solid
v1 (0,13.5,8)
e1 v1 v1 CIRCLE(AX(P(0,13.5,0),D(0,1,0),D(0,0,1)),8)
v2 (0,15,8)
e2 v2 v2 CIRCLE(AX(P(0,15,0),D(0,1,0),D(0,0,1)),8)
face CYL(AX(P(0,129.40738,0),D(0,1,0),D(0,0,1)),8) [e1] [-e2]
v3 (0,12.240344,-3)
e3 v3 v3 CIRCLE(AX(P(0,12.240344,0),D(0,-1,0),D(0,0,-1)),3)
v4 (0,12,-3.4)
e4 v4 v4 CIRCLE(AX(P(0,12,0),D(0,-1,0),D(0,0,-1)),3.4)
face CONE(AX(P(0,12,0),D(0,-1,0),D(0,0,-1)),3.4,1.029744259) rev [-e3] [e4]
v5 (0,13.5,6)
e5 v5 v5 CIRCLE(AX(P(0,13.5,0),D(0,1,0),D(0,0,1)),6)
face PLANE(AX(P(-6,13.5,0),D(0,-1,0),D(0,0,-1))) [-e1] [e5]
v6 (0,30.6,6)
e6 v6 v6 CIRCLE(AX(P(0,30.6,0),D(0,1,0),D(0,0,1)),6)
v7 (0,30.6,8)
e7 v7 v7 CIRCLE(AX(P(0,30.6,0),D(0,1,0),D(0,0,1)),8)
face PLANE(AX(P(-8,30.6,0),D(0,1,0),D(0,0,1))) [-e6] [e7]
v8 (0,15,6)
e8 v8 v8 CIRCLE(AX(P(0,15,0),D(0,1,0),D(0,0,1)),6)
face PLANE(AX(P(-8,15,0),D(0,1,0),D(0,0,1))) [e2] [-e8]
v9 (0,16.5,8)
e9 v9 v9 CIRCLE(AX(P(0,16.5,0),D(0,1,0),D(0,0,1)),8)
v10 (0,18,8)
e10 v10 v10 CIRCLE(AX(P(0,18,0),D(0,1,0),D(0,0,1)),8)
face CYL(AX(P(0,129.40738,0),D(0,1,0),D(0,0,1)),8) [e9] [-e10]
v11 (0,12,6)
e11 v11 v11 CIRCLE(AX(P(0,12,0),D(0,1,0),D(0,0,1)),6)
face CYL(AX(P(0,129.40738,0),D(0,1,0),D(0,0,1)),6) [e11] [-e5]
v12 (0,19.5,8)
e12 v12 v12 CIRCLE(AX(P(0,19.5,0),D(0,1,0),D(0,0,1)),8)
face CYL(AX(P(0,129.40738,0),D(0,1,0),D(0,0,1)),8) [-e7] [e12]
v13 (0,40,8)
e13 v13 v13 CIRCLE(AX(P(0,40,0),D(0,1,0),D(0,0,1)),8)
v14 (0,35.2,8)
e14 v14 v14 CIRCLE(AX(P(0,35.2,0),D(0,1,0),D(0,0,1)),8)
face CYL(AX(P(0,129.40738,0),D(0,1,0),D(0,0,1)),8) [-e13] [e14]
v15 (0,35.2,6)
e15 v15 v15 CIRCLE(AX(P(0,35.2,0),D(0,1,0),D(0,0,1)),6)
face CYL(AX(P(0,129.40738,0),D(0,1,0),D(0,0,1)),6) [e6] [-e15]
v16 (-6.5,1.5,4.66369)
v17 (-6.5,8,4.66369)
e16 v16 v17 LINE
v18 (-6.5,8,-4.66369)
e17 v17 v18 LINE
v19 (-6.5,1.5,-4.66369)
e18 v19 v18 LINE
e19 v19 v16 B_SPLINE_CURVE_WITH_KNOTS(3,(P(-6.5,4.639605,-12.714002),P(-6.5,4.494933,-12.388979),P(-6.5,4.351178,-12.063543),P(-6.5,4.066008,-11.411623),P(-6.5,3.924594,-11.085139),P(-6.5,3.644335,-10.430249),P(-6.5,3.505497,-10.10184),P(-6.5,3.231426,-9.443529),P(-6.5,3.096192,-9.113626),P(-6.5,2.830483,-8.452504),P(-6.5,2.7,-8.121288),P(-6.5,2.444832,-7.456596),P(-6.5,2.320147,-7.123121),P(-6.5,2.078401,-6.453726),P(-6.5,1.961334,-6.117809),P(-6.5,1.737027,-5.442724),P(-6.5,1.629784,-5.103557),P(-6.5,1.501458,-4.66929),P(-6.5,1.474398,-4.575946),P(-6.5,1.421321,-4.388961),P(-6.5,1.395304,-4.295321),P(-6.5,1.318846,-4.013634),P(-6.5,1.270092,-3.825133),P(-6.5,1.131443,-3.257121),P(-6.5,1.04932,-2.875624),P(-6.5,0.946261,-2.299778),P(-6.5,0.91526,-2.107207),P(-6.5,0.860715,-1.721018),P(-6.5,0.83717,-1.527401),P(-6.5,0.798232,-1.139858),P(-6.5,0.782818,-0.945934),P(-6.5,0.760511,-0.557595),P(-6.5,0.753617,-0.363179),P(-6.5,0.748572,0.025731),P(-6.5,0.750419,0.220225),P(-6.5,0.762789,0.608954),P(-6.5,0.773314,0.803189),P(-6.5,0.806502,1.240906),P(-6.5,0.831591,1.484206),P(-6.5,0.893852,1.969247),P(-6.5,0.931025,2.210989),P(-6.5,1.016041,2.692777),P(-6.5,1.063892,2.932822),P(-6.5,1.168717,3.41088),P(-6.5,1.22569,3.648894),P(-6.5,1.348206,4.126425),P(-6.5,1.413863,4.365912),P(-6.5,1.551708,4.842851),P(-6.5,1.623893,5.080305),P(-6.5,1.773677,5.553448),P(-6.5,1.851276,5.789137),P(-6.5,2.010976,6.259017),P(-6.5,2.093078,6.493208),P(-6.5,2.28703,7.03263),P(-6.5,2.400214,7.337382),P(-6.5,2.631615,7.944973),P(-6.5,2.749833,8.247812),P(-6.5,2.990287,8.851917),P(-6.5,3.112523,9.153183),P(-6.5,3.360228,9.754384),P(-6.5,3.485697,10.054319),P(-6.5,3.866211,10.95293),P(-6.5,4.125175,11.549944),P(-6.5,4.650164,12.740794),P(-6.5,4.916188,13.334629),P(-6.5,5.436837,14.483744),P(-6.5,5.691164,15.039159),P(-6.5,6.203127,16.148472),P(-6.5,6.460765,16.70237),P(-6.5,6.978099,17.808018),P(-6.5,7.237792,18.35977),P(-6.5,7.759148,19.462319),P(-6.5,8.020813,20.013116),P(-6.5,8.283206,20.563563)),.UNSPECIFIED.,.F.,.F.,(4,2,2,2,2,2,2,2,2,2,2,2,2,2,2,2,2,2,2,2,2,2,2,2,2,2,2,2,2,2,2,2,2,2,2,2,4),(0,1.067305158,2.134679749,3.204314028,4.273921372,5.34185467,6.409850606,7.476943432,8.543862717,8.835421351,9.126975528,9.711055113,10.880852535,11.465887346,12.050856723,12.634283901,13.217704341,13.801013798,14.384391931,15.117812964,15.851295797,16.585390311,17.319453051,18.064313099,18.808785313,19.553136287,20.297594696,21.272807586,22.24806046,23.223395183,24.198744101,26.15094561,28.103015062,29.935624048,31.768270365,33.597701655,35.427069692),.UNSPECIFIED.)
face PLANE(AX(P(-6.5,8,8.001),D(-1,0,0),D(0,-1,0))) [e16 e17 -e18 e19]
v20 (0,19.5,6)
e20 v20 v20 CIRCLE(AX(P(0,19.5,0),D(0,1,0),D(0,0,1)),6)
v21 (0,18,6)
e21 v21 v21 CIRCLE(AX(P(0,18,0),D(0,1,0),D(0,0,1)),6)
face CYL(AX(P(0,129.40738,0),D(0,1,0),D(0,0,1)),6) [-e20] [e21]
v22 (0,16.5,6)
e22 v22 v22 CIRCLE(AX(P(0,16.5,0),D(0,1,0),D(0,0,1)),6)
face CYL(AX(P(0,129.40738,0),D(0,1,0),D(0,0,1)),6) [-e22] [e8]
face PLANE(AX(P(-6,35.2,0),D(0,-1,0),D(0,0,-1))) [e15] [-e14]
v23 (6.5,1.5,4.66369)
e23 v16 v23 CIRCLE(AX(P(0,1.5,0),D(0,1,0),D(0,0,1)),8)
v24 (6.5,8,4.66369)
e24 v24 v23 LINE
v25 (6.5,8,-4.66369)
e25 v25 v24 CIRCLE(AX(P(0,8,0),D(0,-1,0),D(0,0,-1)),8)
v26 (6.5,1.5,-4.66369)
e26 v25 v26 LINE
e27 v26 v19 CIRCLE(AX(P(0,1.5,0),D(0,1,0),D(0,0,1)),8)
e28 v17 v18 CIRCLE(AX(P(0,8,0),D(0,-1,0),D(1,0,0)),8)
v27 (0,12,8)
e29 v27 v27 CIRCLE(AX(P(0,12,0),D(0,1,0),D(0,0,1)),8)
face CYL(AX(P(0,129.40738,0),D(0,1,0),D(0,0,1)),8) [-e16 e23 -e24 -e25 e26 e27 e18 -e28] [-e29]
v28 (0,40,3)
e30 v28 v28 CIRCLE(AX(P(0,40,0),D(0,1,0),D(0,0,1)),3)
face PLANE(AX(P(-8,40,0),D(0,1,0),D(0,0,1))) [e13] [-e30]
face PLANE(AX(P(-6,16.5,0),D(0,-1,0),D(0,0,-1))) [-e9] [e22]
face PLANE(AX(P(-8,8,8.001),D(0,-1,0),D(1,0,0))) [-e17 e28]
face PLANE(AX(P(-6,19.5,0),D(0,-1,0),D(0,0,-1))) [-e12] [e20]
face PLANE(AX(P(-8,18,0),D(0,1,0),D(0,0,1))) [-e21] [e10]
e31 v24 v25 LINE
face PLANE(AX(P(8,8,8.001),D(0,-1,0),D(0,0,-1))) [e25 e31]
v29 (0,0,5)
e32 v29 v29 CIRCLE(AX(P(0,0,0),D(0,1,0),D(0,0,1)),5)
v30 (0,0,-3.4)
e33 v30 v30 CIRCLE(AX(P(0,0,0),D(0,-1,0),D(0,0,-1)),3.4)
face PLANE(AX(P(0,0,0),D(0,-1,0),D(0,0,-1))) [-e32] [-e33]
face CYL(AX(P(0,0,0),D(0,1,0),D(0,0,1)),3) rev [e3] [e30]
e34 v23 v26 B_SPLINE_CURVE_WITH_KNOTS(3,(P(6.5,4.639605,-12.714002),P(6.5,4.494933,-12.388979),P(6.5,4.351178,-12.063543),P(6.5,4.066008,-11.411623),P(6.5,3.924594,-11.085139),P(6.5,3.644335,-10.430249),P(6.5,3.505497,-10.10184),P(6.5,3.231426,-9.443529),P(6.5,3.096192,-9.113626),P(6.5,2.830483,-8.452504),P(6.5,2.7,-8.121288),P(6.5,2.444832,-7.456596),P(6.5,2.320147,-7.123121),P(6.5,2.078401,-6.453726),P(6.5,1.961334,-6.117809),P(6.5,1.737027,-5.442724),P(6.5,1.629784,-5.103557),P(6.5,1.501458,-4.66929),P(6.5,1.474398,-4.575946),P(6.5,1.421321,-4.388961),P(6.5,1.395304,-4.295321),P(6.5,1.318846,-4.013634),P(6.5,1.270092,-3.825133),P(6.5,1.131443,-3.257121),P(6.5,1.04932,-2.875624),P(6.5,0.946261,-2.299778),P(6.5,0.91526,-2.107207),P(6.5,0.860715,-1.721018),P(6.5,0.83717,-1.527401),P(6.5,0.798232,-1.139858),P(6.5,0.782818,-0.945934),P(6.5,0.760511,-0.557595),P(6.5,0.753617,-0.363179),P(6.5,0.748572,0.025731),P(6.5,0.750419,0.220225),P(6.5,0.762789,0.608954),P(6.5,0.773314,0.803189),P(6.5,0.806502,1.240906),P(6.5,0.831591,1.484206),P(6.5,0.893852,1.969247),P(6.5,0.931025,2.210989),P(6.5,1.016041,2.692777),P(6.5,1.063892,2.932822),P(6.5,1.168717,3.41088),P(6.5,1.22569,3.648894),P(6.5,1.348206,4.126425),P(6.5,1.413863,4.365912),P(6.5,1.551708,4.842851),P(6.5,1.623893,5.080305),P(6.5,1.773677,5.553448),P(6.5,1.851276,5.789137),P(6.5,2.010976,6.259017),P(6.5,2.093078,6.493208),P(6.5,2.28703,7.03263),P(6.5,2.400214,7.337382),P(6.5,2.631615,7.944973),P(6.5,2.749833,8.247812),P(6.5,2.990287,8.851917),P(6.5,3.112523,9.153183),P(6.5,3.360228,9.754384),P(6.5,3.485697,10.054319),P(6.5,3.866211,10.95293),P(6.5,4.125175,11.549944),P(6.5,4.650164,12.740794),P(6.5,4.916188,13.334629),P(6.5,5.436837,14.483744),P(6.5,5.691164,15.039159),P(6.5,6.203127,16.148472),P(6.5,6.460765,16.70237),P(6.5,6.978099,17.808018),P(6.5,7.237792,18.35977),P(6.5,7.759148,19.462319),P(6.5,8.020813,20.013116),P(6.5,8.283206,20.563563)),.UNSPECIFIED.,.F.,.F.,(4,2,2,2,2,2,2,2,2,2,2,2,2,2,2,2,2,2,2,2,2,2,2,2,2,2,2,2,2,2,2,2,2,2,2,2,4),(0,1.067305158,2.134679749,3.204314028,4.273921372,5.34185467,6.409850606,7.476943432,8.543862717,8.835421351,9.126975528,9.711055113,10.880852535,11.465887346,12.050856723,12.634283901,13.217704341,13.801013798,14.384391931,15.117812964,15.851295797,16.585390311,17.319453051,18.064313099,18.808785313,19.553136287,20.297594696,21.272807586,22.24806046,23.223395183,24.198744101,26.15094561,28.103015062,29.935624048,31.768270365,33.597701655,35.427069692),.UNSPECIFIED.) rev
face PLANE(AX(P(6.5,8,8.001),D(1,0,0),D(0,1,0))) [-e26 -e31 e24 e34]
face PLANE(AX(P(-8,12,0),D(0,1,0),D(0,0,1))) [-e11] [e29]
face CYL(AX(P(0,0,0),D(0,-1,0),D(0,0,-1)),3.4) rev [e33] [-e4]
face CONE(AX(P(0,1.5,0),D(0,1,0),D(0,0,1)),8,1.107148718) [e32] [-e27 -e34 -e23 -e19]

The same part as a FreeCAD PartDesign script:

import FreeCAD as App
import Part
import Sketcher

V = App.Vector

doc = App.newDocument("Part")
params = doc.addObject("Spreadsheet::Sheet", "Params")
for row, (alias, value) in enumerate([
    ("sketch1_width", "5 mm"),
    ("sketch1_width2", "8 mm"),
    ("sketch1_width3", "2 mm"),
    ("sketch1_height", "40 mm"),
    ("sketch1_height2", "4.8 mm"),
    ("revolution_angle", "360 deg"),
    ("sketch2_height", "8 mm"),
    ("sketch2_width", "1.5 mm"),
    ("pocket1_length", "4.66369 mm"),
    ("sketch3_height", "8 mm"),
    ("sketch3_width", "1.5 mm"),
    ("pocket2_length", "4.66369 mm"),
    ("sketch4_height", "8 mm"),
    ("sketch4_width", "1.5 mm"),
    ("pocket3_length", "4.66369 mm"),
    ("sketch5_height", "8 mm"),
    ("sketch5_width", "1.5 mm"),
    ("pocket4_length", "4.66369 mm"),
    ("sketch6_diameter", "6 mm"),
    ("sketch7_diameter", "6.8 mm"),
    ("hole_diameter", "6.8 mm"),
    ("hole_depth", "12 mm"),
], start=1):
    params.set(f"A{row}", alias)
    params.set(f"B{row}", "=" + value)
    params.setAlias(f"B{row}", alias)

body = doc.addObject("PartDesign::Body", "Body")

# Sketch on XY plane
sketch1 = body.newObject("Sketcher::SketchObject", "Sketch")
sketch1.AttachmentSupport = (doc.getObject("XY_Plane"), [""])
sketch1.MapMode = "FlatFace"
sketch1.addGeometry(Part.LineSegment(V(-5, 0, 0), V(0, 0, 0)), False)
sketch1.addGeometry(Part.LineSegment(V(0, 0, 0), V(0, 40, 0)), False)
sketch1.addGeometry(Part.LineSegment(V(0, 40, 0), V(-8, 40, 0)), False)
sketch1.addGeometry(Part.LineSegment(V(-8, 40, 0), V(-8, 35.2, 0)), False)
sketch1.addGeometry(Part.LineSegment(V(-8, 35.2, 0), V(-6, 35.2, 0)), False)
sketch1.addGeometry(Part.LineSegment(V(-6, 35.2, 0), V(-6, 30.6, 0)), False)
sketch1.addGeometry(Part.LineSegment(V(-6, 30.6, 0), V(-8, 30.6, 0)), False)
sketch1.addGeometry(Part.LineSegment(V(-8, 30.6, 0), V(-8, 19.5, 0)), False)
sketch1.addGeometry(Part.LineSegment(V(-8, 19.5, 0), V(-6, 19.5, 0)), False)
sketch1.addGeometry(Part.LineSegment(V(-6, 19.5, 0), V(-6, 18, 0)), False)
sketch1.addGeometry(Part.LineSegment(V(-6, 18, 0), V(-8, 18, 0)), False)
sketch1.addGeometry(Part.LineSegment(V(-8, 18, 0), V(-8, 16.5, 0)), False)
sketch1.addGeometry(Part.LineSegment(V(-8, 16.5, 0), V(-6, 16.5, 0)), False)
sketch1.addGeometry(Part.LineSegment(V(-6, 16.5, 0), V(-6, 15, 0)), False)
sketch1.addGeometry(Part.LineSegment(V(-6, 15, 0), V(-8, 15, 0)), False)
sketch1.addGeometry(Part.LineSegment(V(-8, 15, 0), V(-8, 13.5, 0)), False)
sketch1.addGeometry(Part.LineSegment(V(-8, 13.5, 0), V(-6, 13.5, 0)), False)
sketch1.addGeometry(Part.LineSegment(V(-6, 13.5, 0), V(-6, 12, 0)), False)
sketch1.addGeometry(Part.LineSegment(V(-6, 12, 0), V(-8, 12, 0)), False)
sketch1.addGeometry(Part.LineSegment(V(-8, 12, 0), V(-8, 1.5, 0)), False)
sketch1.addGeometry(Part.LineSegment(V(-8, 1.5, 0), V(-5, 0, 0)), False)
sketch1.addConstraint(Sketcher.Constraint("Coincident", 0, 2, 1, 1))
sketch1.addConstraint(Sketcher.Constraint("Coincident", 1, 2, 2, 1))
sketch1.addConstraint(Sketcher.Constraint("Coincident", 2, 2, 3, 1))
sketch1.addConstraint(Sketcher.Constraint("Coincident", 3, 2, 4, 1))
sketch1.addConstraint(Sketcher.Constraint("Coincident", 4, 2, 5, 1))
sketch1.addConstraint(Sketcher.Constraint("Coincident", 5, 2, 6, 1))
sketch1.addConstraint(Sketcher.Constraint("Coincident", 6, 2, 7, 1))
sketch1.addConstraint(Sketcher.Constraint("Coincident", 7, 2, 8, 1))
sketch1.addConstraint(Sketcher.Constraint("Coincident", 8, 2, 9, 1))
sketch1.addConstraint(Sketcher.Constraint("Coincident", 9, 2, 10, 1))
sketch1.addConstraint(Sketcher.Constraint("Coincident", 10, 2, 11, 1))
sketch1.addConstraint(Sketcher.Constraint("Coincident", 11, 2, 12, 1))
sketch1.addConstraint(Sketcher.Constraint("Coincident", 12, 2, 13, 1))
sketch1.addConstraint(Sketcher.Constraint("Coincident", 13, 2, 14, 1))
sketch1.addConstraint(Sketcher.Constraint("Coincident", 14, 2, 15, 1))
sketch1.addConstraint(Sketcher.Constraint("Coincident", 15, 2, 16, 1))
sketch1.addConstraint(Sketcher.Constraint("Coincident", 16, 2, 17, 1))
sketch1.addConstraint(Sketcher.Constraint("Coincident", 17, 2, 18, 1))
sketch1.addConstraint(Sketcher.Constraint("Coincident", 18, 2, 19, 1))
sketch1.addConstraint(Sketcher.Constraint("Coincident", 19, 2, 20, 1))
sketch1.addConstraint(Sketcher.Constraint("Coincident", 20, 2, 0, 1))
sketch1.addConstraint(Sketcher.Constraint("Horizontal", 0))
sketch1.addConstraint(Sketcher.Constraint("Vertical", 1))
sketch1.addConstraint(Sketcher.Constraint("Horizontal", 2))
sketch1.addConstraint(Sketcher.Constraint("Vertical", 3))
sketch1.addConstraint(Sketcher.Constraint("Horizontal", 4))
sketch1.addConstraint(Sketcher.Constraint("Vertical", 5))
sketch1.addConstraint(Sketcher.Constraint("Horizontal", 6))
sketch1.addConstraint(Sketcher.Constraint("Vertical", 7))
sketch1.addConstraint(Sketcher.Constraint("Horizontal", 8))
sketch1.addConstraint(Sketcher.Constraint("Vertical", 9))
sketch1.addConstraint(Sketcher.Constraint("Horizontal", 10))
sketch1.addConstraint(Sketcher.Constraint("Vertical", 11))
sketch1.addConstraint(Sketcher.Constraint("Horizontal", 12))
sketch1.addConstraint(Sketcher.Constraint("Vertical", 13))
sketch1.addConstraint(Sketcher.Constraint("Horizontal", 14))
sketch1.addConstraint(Sketcher.Constraint("Vertical", 15))
sketch1.addConstraint(Sketcher.Constraint("Horizontal", 16))
sketch1.addConstraint(Sketcher.Constraint("Vertical", 17))
sketch1.addConstraint(Sketcher.Constraint("Horizontal", 18))
sketch1.addConstraint(Sketcher.Constraint("Vertical", 19))
sketch1.addConstraint(Sketcher.Constraint("Coincident", 0, 2, -1, 1))
sketch1.addConstraint(Sketcher.Constraint("Vertical", 3, 2, 6, 2))
sketch1.addConstraint(Sketcher.Constraint("Vertical", 5, 2, 8, 2))
sketch1.addConstraint(Sketcher.Constraint("Vertical", 7, 2, 10, 2))
sketch1.addConstraint(Sketcher.Constraint("Vertical", 9, 2, 12, 2))
sketch1.addConstraint(Sketcher.Constraint("Vertical", 11, 2, 14, 2))
sketch1.addConstraint(Sketcher.Constraint("Vertical", 13, 2, 16, 2))
sketch1.addConstraint(Sketcher.Constraint("Vertical", 15, 2, 18, 2))
sketch1.addConstraint(Sketcher.Constraint("Equal", 9, 11))
sketch1.addConstraint(Sketcher.Constraint("Equal", 11, 13))
sketch1.addConstraint(Sketcher.Constraint("Equal", 13, 15))
sketch1.addConstraint(Sketcher.Constraint("Equal", 15, 17))
sketch1.addConstraint(Sketcher.Constraint("DistanceX", 0, 1, 0, 2, 5.0))
sketch1.addConstraint(Sketcher.Constraint("DistanceX", 2, 2, 2, 1, 8.0))
sketch1.addConstraint(Sketcher.Constraint("DistanceX", 4, 1, 4, 2, 2.0))
sketch1.addConstraint(Sketcher.Constraint("DistanceY", 1, 1, 1, 2, 40.0))
sketch1.addConstraint(Sketcher.Constraint("DistanceY", 3, 2, 3, 1, 4.8))
sketch1.addConstraint(Sketcher.Constraint("DistanceY", 5, 2, 5, 1, 4.6))
sketch1.addConstraint(Sketcher.Constraint("DistanceY", 7, 2, 7, 1, 11.1))
sketch1.addConstraint(Sketcher.Constraint("DistanceY", 9, 2, 9, 1, 1.5))
sketch1.addConstraint(Sketcher.Constraint("DistanceY", 19, 2, 19, 1, 10.5))
sketch1.setExpression("Constraints[53]", "Params.sketch1_width")
sketch1.setExpression("Constraints[54]", "Params.sketch1_width2")
sketch1.setExpression("Constraints[55]", "Params.sketch1_width3")
sketch1.setExpression("Constraints[56]", "Params.sketch1_height")
sketch1.setExpression("Constraints[57]", "Params.sketch1_height2")
revolution = body.newObject("PartDesign::Revolution", "Revolution")
revolution.Profile = sketch1
revolution.ReferenceAxis = (sketch1, ["V_Axis"])
revolution.setExpression("Angle", "Params.revolution_angle")

# Sketch on XY plane
sketch2 = body.newObject("Sketcher::SketchObject", "Sketch001")
sketch2.AttachmentSupport = (doc.getObject("XY_Plane"), [""])
sketch2.MapMode = "FlatFace"
sketch2.addGeometry(Part.LineSegment(V(-8, 8, 0), V(-8, 0, 0)), False)
sketch2.addGeometry(Part.LineSegment(V(-8, 0, 0), V(-6.5, 0, 0)), False)
sketch2.addGeometry(Part.LineSegment(V(-6.5, 0, 0), V(-6.5, 8, 0)), False)
sketch2.addGeometry(Part.LineSegment(V(-6.5, 8, 0), V(-8, 8, 0)), False)
sketch2.addConstraint(Sketcher.Constraint("Coincident", 0, 2, 1, 1))
sketch2.addConstraint(Sketcher.Constraint("Coincident", 1, 2, 2, 1))
sketch2.addConstraint(Sketcher.Constraint("Coincident", 2, 2, 3, 1))
sketch2.addConstraint(Sketcher.Constraint("Coincident", 3, 2, 0, 1))
sketch2.addConstraint(Sketcher.Constraint("Vertical", 0))
sketch2.addConstraint(Sketcher.Constraint("Horizontal", 1))
sketch2.addConstraint(Sketcher.Constraint("Vertical", 2))
sketch2.addConstraint(Sketcher.Constraint("Horizontal", 3))
sketch2.addConstraint(Sketcher.Constraint("PointOnObject", 0, 2, -1))
sketch2.addConstraint(Sketcher.Constraint("DistanceY", 0, 2, 0, 1, 8.0))
sketch2.addConstraint(Sketcher.Constraint("DistanceX", 1, 1, 1, 2, 1.5))
sketch2.addConstraint(Sketcher.Constraint("DistanceX", 0, 2, -1, 1, 8.0))
sketch2.setExpression("Constraints[9]", "Params.sketch2_height")
sketch2.setExpression("Constraints[10]", "Params.sketch2_width")
pocket1 = body.newObject("PartDesign::Pocket", "Pocket")
pocket1.Profile = sketch2
pocket1.setExpression("Length", "Params.pocket1_length")

# Sketch on XY plane
sketch3 = body.newObject("Sketcher::SketchObject", "Sketch002")
sketch3.AttachmentSupport = (doc.getObject("XY_Plane"), [""])
sketch3.MapMode = "FlatFace"
sketch3.addGeometry(Part.LineSegment(V(6.5, 8, 0), V(6.5, 0, 0)), False)
sketch3.addGeometry(Part.LineSegment(V(6.5, 0, 0), V(8, 0, 0)), False)
sketch3.addGeometry(Part.LineSegment(V(8, 0, 0), V(8, 8, 0)), False)
sketch3.addGeometry(Part.LineSegment(V(8, 8, 0), V(6.5, 8, 0)), False)
sketch3.addConstraint(Sketcher.Constraint("Coincident", 0, 2, 1, 1))
sketch3.addConstraint(Sketcher.Constraint("Coincident", 1, 2, 2, 1))
sketch3.addConstraint(Sketcher.Constraint("Coincident", 2, 2, 3, 1))
sketch3.addConstraint(Sketcher.Constraint("Coincident", 3, 2, 0, 1))
sketch3.addConstraint(Sketcher.Constraint("Vertical", 0))
sketch3.addConstraint(Sketcher.Constraint("Horizontal", 1))
sketch3.addConstraint(Sketcher.Constraint("Vertical", 2))
sketch3.addConstraint(Sketcher.Constraint("Horizontal", 3))
sketch3.addConstraint(Sketcher.Constraint("PointOnObject", 0, 2, -1))
sketch3.addConstraint(Sketcher.Constraint("DistanceY", 0, 2, 0, 1, 8.0))
sketch3.addConstraint(Sketcher.Constraint("DistanceX", 1, 1, 1, 2, 1.5))
sketch3.addConstraint(Sketcher.Constraint("DistanceX", -1, 1, 1, 2, 8.0))
sketch3.setExpression("Constraints[9]", "Params.sketch3_height")
sketch3.setExpression("Constraints[10]", "Params.sketch3_width")
pocket2 = body.newObject("PartDesign::Pocket", "Pocket001")
pocket2.Profile = sketch3
pocket2.setExpression("Length", "Params.pocket2_length")

# Sketch on XY plane
sketch4 = body.newObject("Sketcher::SketchObject", "Sketch003")
sketch4.AttachmentSupport = (doc.getObject("XY_Plane"), [""])
sketch4.MapMode = "FlatFace"
sketch4.addGeometry(Part.LineSegment(V(-8, 8, 0), V(-8, 0, 0)), False)
sketch4.addGeometry(Part.LineSegment(V(-8, 0, 0), V(-6.5, 0, 0)), False)
sketch4.addGeometry(Part.LineSegment(V(-6.5, 0, 0), V(-6.5, 8, 0)), False)
sketch4.addGeometry(Part.LineSegment(V(-6.5, 8, 0), V(-8, 8, 0)), False)
sketch4.addConstraint(Sketcher.Constraint("Coincident", 0, 2, 1, 1))
sketch4.addConstraint(Sketcher.Constraint("Coincident", 1, 2, 2, 1))
sketch4.addConstraint(Sketcher.Constraint("Coincident", 2, 2, 3, 1))
sketch4.addConstraint(Sketcher.Constraint("Coincident", 3, 2, 0, 1))
sketch4.addConstraint(Sketcher.Constraint("Vertical", 0))
sketch4.addConstraint(Sketcher.Constraint("Horizontal", 1))
sketch4.addConstraint(Sketcher.Constraint("Vertical", 2))
sketch4.addConstraint(Sketcher.Constraint("Horizontal", 3))
sketch4.addConstraint(Sketcher.Constraint("PointOnObject", 0, 2, -1))
sketch4.addConstraint(Sketcher.Constraint("DistanceY", 0, 2, 0, 1, 8.0))
sketch4.addConstraint(Sketcher.Constraint("DistanceX", 1, 1, 1, 2, 1.5))
sketch4.addConstraint(Sketcher.Constraint("DistanceX", 0, 2, -1, 1, 8.0))
sketch4.setExpression("Constraints[9]", "Params.sketch4_height")
sketch4.setExpression("Constraints[10]", "Params.sketch4_width")
pocket3 = body.newObject("PartDesign::Pocket", "Pocket002")
pocket3.Profile = sketch4
pocket3.setExpression("Length", "Params.pocket3_length")
pocket3.Reversed = True

# Sketch on XY plane
sketch5 = body.newObject("Sketcher::SketchObject", "Sketch004")
sketch5.AttachmentSupport = (doc.getObject("XY_Plane"), [""])
sketch5.MapMode = "FlatFace"
sketch5.addGeometry(Part.LineSegment(V(6.5, 8, 0), V(6.5, 0, 0)), False)
sketch5.addGeometry(Part.LineSegment(V(6.5, 0, 0), V(8, 0, 0)), False)
sketch5.addGeometry(Part.LineSegment(V(8, 0, 0), V(8, 8, 0)), False)
sketch5.addGeometry(Part.LineSegment(V(8, 8, 0), V(6.5, 8, 0)), False)
sketch5.addConstraint(Sketcher.Constraint("Coincident", 0, 2, 1, 1))
sketch5.addConstraint(Sketcher.Constraint("Coincident", 1, 2, 2, 1))
sketch5.addConstraint(Sketcher.Constraint("Coincident", 2, 2, 3, 1))
sketch5.addConstraint(Sketcher.Constraint("Coincident", 3, 2, 0, 1))
sketch5.addConstraint(Sketcher.Constraint("Vertical", 0))
sketch5.addConstraint(Sketcher.Constraint("Horizontal", 1))
sketch5.addConstraint(Sketcher.Constraint("Vertical", 2))
sketch5.addConstraint(Sketcher.Constraint("Horizontal", 3))
sketch5.addConstraint(Sketcher.Constraint("PointOnObject", 0, 2, -1))
sketch5.addConstraint(Sketcher.Constraint("DistanceY", 0, 2, 0, 1, 8.0))
sketch5.addConstraint(Sketcher.Constraint("DistanceX", 1, 1, 1, 2, 1.5))
sketch5.addConstraint(Sketcher.Constraint("DistanceX", -1, 1, 1, 2, 8.0))
sketch5.setExpression("Constraints[9]", "Params.sketch5_height")
sketch5.setExpression("Constraints[10]", "Params.sketch5_width")
pocket4 = body.newObject("PartDesign::Pocket", "Pocket003")
pocket4.Profile = sketch5
pocket4.setExpression("Length", "Params.pocket4_length")
pocket4.Reversed = True

# Sketch on XZ plane
sketch6 = body.newObject("Sketcher::SketchObject", "Sketch005")
sketch6.AttachmentSupport = (doc.getObject("XZ_Plane"), [""])
sketch6.MapMode = "FlatFace"
sketch6.AttachmentOffset = App.Placement(V(0, 0, -40), App.Rotation())
sketch6.addGeometry(Part.Circle(V(0, 0, 0), V(0, 0, 1), 3), False)
sketch6.addConstraint(Sketcher.Constraint("Coincident", 0, 3, -1, 1))
sketch6.addConstraint(Sketcher.Constraint("Diameter", 0, 6.0))
sketch6.setExpression("Constraints[1]", "Params.sketch6_diameter")
pocket5 = body.newObject("PartDesign::Pocket", "Pocket004")
pocket5.Profile = sketch6
pocket5.Type = "ThroughAll"
pocket5.Reversed = True

# Sketch on XZ plane
sketch7 = body.newObject("Sketcher::SketchObject", "Sketch006")
sketch7.AttachmentSupport = (doc.getObject("XZ_Plane"), [""])
sketch7.MapMode = "FlatFace"
sketch7.addGeometry(Part.Circle(V(0, 0, 0), V(0, 0, 1), 3.4), False)
sketch7.addConstraint(Sketcher.Constraint("Coincident", 0, 3, -1, 1))
sketch7.addConstraint(Sketcher.Constraint("Diameter", 0, 6.8))
sketch7.setExpression("Constraints[1]", "Params.sketch7_diameter")
doc.recompute()
hole = body.newObject("PartDesign::Hole", "Hole")
hole.Profile = sketch7
hole.ThreadType = "None"
hole.setExpression("Diameter", "Params.hole_diameter")
hole.DepthType = "Dimension"
hole.setExpression("Depth", "Params.hole_depth")
hole.DrillPoint = "Angled"
hole.DrillPointAngle = 118

doc.recompute()
